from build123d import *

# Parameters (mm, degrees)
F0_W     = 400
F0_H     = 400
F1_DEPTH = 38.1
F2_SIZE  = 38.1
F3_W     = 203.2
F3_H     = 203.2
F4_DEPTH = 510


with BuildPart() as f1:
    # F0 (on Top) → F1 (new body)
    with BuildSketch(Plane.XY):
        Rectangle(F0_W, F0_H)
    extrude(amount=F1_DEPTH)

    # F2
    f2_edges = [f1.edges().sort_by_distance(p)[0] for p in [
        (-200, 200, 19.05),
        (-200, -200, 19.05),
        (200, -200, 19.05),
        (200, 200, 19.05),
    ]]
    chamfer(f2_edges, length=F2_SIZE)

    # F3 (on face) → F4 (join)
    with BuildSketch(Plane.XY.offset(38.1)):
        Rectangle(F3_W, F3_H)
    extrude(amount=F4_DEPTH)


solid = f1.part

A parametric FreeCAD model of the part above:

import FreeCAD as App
import Part
import Sketcher
from FreeCAD import Vector


def edges_at(feature, points):
    """Names of the edges that pass closest to the given points."""
    edges = feature.Shape.Edges
    near = lambda p: min(range(len(edges)), key=lambda i: edges[i].distToShape(Part.Vertex(*p))[0])
    return sorted({f"Edge{near(p) + 1}" for p in points})


def add_polygon(sketch, points):
    """Adds a closed chain of lines whose ends are joined by coincident constraints."""
    first, n = sketch.GeometryCount, len(points)
    for a, b in zip(points, points[1:] + points[:1]):
        sketch.addGeometry(Part.LineSegment(App.Vector(*a, 0), App.Vector(*b, 0)), False)
    for i in range(n):
        sketch.addConstraint(Sketcher.Constraint("Coincident", first + i, 2, first + (i + 1) % n, 1))

doc = App.newDocument("Part")
params = doc.addObject("Spreadsheet::Sheet", "Params")
for row, (alias, value) in enumerate([
    ("sketch1_width", "400 mm"),
    ("pad1_length", "38.1 mm"),
    ("chamfer_size", "38.1 mm"),
    ("sketch2_width", "203.2 mm"),
    ("pad2_length", "510 mm"),
], start=1):
    params.set(f"A{row}", alias)
    params.set(f"B{row}", "=" + value)
    params.setAlias(f"B{row}", alias)

body = doc.addObject("PartDesign::Body", "Body")

# Sketch on XY plane
sketch1 = doc.addObject("Sketcher::SketchObject", "Sketch")
body.addObject(sketch1)
sketch1.AttachmentSupport = (doc.XY_Plane, [""])
sketch1.MapMode = "FlatFace"
add_polygon(sketch1, [(-200, 200), (-200, -200), (200, -200), (200, 200)])  # lines 0-3
sketch1.addConstraint([
    Sketcher.Constraint("Vertical", 0),
    Sketcher.Constraint("Horizontal", 1),
    Sketcher.Constraint("Vertical", 2),
    Sketcher.Constraint("Horizontal", 3),
    Sketcher.Constraint("Symmetric", 0, 2, 2, 2, -1, 1),
    Sketcher.Constraint("Equal", 3, 0),
    Sketcher.Constraint("DistanceX", 1, 1, 1, 2, 400.0),
])
sketch1.setExpression("Constraints[10]", "Params.sketch1_width")
pad1 = doc.addObject("PartDesign::Pad", "Pad")
body.addObject(pad1)
pad1.Profile = sketch1
pad1.setExpression("Length", "Params.pad1_length")
doc.recompute()

chamfer = doc.addObject("PartDesign::Chamfer", "Chamfer")
body.addObject(chamfer)
chamfer.Base = (pad1, edges_at(pad1, [
    (-200, 200, 19.05),
    (-200, -200, 19.05),
    (200, -200, 19.05),
    (200, 200, 19.05),
]))
chamfer.setExpression("Size", "Params.chamfer_size")

# Sketch on XY plane
sketch2 = doc.addObject("Sketcher::SketchObject", "Sketch001")
body.addObject(sketch2)
sketch2.AttachmentSupport = (doc.XY_Plane, [""])
sketch2.MapMode = "FlatFace"
sketch2.AttachmentOffset = App.Placement(Vector(0, 0, 38.1), App.Rotation())
add_polygon(sketch2, [(-101.6, 101.6), (-101.6, -101.6), (101.6, -101.6), (101.6, 101.6)])  # lines 0-3
sketch2.addConstraint([
    Sketcher.Constraint("Vertical", 0),
    Sketcher.Constraint("Horizontal", 1),
    Sketcher.Constraint("Vertical", 2),
    Sketcher.Constraint("Horizontal", 3),
    Sketcher.Constraint("Symmetric", 0, 2, 2, 2, -1, 1),
    Sketcher.Constraint("Equal", 3, 0),
    Sketcher.Constraint("DistanceX", 1, 1, 1, 2, 203.2),
])
sketch2.setExpression("Constraints[10]", "Params.sketch2_width")
pad2 = doc.addObject("PartDesign::Pad", "Pad001")
body.addObject(pad2)
pad2.Profile = sketch2
pad2.setExpression("Length", "Params.pad2_length")

doc.recompute()
